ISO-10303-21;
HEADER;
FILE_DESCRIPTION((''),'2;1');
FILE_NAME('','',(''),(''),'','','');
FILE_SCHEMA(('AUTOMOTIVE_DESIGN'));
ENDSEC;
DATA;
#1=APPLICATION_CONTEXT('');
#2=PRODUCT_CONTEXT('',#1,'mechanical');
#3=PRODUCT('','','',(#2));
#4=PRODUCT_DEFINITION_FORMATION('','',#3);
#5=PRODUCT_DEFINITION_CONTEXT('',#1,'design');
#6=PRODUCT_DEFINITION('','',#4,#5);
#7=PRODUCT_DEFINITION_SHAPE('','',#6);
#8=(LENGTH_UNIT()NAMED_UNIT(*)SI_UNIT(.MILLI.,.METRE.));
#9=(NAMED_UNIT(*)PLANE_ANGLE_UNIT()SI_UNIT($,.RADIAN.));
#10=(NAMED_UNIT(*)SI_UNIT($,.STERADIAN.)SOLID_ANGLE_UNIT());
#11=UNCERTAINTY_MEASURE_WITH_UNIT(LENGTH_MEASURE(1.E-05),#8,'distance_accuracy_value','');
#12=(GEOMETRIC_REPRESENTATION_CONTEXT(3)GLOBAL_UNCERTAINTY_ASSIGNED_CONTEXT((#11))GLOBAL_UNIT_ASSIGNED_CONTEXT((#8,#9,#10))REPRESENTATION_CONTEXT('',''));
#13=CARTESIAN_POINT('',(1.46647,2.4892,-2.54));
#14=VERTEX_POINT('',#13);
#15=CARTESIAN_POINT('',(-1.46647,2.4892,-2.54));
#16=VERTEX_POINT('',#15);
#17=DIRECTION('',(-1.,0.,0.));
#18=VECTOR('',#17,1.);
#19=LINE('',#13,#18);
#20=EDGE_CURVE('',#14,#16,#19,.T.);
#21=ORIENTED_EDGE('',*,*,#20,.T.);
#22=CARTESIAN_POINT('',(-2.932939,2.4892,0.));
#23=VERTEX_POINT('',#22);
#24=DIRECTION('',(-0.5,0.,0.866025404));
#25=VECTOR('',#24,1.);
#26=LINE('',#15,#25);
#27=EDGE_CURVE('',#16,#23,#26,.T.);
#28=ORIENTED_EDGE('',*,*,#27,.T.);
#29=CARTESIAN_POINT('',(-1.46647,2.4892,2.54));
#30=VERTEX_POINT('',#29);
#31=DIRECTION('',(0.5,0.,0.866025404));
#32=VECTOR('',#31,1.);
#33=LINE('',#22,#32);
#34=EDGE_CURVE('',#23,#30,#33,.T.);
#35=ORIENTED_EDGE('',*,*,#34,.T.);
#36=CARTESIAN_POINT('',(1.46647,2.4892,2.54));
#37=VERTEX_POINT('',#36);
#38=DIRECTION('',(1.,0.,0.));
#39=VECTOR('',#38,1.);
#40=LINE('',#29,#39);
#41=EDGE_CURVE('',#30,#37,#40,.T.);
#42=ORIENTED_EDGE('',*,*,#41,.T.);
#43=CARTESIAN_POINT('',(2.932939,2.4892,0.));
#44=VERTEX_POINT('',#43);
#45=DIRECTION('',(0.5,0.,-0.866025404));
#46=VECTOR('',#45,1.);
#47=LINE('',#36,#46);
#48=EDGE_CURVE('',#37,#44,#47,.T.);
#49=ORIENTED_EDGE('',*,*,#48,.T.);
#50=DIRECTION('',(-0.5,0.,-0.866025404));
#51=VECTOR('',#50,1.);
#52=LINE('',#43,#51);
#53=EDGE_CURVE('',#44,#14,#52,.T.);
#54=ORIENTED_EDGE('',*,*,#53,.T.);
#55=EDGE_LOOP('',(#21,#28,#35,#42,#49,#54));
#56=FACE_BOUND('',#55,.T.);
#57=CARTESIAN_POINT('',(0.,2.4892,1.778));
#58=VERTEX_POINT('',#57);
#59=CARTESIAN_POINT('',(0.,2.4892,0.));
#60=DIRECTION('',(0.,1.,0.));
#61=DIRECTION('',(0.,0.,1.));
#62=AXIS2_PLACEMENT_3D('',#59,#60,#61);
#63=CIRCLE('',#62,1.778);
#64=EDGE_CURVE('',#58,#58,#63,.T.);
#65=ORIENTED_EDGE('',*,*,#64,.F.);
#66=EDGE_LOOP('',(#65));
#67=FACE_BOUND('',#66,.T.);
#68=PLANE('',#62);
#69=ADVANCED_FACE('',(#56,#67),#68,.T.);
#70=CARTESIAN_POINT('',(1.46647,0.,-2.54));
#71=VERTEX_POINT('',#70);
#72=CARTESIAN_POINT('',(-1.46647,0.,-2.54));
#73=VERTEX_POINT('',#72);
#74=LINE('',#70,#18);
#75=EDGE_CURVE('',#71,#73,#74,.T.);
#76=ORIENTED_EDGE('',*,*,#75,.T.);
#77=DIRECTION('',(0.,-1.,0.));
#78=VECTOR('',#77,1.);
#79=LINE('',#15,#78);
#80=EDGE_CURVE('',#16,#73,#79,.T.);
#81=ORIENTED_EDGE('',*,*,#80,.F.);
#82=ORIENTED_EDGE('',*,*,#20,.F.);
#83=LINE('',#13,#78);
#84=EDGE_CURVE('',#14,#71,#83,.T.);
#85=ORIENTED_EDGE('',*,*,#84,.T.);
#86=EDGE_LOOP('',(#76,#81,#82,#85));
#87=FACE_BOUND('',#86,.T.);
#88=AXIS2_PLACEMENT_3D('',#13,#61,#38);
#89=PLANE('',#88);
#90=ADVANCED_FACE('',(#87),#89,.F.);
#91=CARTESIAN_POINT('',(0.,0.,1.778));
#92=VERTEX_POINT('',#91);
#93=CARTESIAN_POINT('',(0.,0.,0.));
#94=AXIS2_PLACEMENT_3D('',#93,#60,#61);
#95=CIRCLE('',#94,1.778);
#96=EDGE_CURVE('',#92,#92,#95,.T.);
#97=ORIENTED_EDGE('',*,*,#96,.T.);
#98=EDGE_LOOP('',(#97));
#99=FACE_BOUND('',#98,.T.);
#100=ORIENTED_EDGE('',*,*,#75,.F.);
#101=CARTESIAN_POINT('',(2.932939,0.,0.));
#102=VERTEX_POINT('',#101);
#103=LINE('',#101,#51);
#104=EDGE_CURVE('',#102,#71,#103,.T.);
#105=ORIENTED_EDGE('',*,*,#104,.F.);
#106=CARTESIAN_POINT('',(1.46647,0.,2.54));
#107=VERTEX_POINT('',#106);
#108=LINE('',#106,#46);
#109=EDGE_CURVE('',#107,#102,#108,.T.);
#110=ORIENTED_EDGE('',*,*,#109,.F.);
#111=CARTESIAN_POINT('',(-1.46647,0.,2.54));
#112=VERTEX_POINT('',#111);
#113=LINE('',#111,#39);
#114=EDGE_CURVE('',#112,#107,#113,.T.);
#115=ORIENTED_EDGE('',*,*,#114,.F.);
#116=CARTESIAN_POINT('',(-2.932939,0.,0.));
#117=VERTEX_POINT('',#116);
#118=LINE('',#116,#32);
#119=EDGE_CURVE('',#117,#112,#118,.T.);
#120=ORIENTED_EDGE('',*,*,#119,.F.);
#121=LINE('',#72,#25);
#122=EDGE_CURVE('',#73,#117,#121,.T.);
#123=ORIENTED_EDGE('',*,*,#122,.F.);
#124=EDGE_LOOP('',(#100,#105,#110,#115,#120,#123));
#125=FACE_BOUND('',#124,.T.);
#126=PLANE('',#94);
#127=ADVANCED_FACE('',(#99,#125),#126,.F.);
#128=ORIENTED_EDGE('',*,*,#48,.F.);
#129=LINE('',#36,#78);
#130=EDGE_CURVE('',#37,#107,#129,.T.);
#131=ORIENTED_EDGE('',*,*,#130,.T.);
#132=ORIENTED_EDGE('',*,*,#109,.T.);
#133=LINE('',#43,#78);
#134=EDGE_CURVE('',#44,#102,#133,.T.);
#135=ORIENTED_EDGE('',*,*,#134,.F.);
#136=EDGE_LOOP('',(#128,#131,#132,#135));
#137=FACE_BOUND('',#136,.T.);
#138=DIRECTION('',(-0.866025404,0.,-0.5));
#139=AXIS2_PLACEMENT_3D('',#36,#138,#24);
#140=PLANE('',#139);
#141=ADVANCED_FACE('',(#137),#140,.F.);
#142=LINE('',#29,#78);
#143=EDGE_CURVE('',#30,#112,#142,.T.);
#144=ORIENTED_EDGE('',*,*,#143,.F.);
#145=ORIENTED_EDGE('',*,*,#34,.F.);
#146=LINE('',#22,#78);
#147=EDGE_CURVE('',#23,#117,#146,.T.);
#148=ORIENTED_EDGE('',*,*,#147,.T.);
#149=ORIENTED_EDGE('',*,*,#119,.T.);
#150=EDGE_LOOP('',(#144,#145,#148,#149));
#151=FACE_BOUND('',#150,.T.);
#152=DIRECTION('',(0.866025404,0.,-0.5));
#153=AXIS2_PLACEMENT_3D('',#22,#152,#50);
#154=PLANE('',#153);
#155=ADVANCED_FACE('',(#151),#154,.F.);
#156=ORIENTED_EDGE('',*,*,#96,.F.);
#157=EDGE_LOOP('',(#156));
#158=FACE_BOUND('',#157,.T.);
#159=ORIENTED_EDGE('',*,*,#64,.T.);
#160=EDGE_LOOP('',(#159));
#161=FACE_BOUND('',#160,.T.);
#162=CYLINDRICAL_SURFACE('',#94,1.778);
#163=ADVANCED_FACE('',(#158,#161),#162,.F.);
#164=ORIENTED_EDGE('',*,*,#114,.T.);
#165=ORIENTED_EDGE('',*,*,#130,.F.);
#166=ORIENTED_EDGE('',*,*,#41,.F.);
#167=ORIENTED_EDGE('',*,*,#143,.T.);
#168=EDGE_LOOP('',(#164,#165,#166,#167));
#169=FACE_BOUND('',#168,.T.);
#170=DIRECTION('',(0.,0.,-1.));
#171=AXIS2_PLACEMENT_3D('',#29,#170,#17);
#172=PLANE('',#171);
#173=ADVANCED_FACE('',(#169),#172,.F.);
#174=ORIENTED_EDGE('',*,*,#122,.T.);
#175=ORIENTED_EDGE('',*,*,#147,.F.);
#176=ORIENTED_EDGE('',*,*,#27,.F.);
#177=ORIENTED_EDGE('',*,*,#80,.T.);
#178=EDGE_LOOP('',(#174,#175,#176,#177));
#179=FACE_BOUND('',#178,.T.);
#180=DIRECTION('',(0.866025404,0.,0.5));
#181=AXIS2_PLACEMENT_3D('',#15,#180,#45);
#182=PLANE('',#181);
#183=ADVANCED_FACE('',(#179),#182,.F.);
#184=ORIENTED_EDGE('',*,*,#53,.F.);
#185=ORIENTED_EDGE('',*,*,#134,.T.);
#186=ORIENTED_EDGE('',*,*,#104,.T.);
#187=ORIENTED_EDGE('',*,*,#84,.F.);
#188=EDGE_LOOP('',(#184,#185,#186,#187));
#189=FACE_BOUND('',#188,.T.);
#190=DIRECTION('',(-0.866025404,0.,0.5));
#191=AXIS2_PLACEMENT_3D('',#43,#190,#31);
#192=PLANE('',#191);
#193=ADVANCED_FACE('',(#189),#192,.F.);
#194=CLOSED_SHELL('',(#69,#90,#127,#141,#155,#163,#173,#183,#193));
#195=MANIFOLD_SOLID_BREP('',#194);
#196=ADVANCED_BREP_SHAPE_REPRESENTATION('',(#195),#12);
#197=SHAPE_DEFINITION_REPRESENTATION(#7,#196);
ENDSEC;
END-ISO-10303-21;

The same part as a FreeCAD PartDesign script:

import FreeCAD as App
import Part
import Sketcher

V = App.Vector
Q = App.Units.Quantity


def add_polygon(sketch, points):
    """Adds a closed chain of lines whose ends are joined by coincident constraints."""
    first, n = sketch.GeometryCount, len(points)
    for a, b in zip(points, points[1:] + points[:1]):
        sketch.addGeometry(Part.LineSegment(App.Vector(*a, 0), App.Vector(*b, 0)), False)
    for i in range(n):
        sketch.addConstraint(Sketcher.Constraint("Coincident", first + i, 2, first + (i + 1) % n, 1))

doc = App.newDocument("Part")
body = doc.addObject("PartDesign::Body", "Body")

# Sketch on XZ plane
sketch1 = body.newObject("Sketcher::SketchObject", "Sketch")
sketch1.AttachmentSupport = (doc.getObject("XZ_Plane"), [""])
sketch1.MapMode = "FlatFace"
add_polygon(sketch1, [(1.5, -2.5), (-1.5, -2.5), (-2.9, 0), (-1.5, 2.5), (1.5, 2.5), (2.9, 0)])  # lines 0-5
sketch1.addConstraint([
    Sketcher.Constraint("Horizontal", 0),
    Sketcher.Constraint("Horizontal", 3),
    Sketcher.Constraint("Symmetric", 0, 2, 3, 2, -1, 1),
    Sketcher.Constraint("Symmetric", 1, 2, 4, 2, -1, 1),
    Sketcher.Constraint("PointOnObject", 1, 2, -1),
    Sketcher.Constraint("Parallel", 2, 5),
    Sketcher.Constraint("Vertical", 0, 2, 2, 2),
    Sketcher.Constraint("Angle", 1, Q("120 deg")),
    Sketcher.Constraint("DistanceY", 0, 2, -1, 1, Q("0.1 in")),
    Sketcher.Constraint("DistanceX", 0, 2, 0, 1, Q("2.932939 mm")),
])
pad1 = body.newObject("PartDesign::Pad", "Pad")
pad1.Profile = sketch1
pad1.Length = Q("0.098 in")
pad1.Reversed = True

# Sketch on XZ plane
sketch2 = body.newObject("Sketcher::SketchObject", "Sketch001")
sketch2.AttachmentSupport = (doc.getObject("XZ_Plane"), [""])
sketch2.MapMode = "FlatFace"
sketch2.AttachmentOffset = App.Placement(V(0, 0, -0.098 * 25.4), App.Rotation())
sketch2.addGeometry(Part.Circle(V(0, 0, 0), V(0, 0, 1), 1.8), False)
sketch2.addConstraint([
    Sketcher.Constraint("Coincident", 0, 3, -1, 1),
    Sketcher.Constraint("Diameter", 0, Q("0.14 in")),
])
pocket1 = body.newObject("PartDesign::Pocket", "Pocket")
pocket1.Profile = sketch2
pocket1.Type = "ThroughAll"
pocket1.Reversed = True

doc.recompute()
